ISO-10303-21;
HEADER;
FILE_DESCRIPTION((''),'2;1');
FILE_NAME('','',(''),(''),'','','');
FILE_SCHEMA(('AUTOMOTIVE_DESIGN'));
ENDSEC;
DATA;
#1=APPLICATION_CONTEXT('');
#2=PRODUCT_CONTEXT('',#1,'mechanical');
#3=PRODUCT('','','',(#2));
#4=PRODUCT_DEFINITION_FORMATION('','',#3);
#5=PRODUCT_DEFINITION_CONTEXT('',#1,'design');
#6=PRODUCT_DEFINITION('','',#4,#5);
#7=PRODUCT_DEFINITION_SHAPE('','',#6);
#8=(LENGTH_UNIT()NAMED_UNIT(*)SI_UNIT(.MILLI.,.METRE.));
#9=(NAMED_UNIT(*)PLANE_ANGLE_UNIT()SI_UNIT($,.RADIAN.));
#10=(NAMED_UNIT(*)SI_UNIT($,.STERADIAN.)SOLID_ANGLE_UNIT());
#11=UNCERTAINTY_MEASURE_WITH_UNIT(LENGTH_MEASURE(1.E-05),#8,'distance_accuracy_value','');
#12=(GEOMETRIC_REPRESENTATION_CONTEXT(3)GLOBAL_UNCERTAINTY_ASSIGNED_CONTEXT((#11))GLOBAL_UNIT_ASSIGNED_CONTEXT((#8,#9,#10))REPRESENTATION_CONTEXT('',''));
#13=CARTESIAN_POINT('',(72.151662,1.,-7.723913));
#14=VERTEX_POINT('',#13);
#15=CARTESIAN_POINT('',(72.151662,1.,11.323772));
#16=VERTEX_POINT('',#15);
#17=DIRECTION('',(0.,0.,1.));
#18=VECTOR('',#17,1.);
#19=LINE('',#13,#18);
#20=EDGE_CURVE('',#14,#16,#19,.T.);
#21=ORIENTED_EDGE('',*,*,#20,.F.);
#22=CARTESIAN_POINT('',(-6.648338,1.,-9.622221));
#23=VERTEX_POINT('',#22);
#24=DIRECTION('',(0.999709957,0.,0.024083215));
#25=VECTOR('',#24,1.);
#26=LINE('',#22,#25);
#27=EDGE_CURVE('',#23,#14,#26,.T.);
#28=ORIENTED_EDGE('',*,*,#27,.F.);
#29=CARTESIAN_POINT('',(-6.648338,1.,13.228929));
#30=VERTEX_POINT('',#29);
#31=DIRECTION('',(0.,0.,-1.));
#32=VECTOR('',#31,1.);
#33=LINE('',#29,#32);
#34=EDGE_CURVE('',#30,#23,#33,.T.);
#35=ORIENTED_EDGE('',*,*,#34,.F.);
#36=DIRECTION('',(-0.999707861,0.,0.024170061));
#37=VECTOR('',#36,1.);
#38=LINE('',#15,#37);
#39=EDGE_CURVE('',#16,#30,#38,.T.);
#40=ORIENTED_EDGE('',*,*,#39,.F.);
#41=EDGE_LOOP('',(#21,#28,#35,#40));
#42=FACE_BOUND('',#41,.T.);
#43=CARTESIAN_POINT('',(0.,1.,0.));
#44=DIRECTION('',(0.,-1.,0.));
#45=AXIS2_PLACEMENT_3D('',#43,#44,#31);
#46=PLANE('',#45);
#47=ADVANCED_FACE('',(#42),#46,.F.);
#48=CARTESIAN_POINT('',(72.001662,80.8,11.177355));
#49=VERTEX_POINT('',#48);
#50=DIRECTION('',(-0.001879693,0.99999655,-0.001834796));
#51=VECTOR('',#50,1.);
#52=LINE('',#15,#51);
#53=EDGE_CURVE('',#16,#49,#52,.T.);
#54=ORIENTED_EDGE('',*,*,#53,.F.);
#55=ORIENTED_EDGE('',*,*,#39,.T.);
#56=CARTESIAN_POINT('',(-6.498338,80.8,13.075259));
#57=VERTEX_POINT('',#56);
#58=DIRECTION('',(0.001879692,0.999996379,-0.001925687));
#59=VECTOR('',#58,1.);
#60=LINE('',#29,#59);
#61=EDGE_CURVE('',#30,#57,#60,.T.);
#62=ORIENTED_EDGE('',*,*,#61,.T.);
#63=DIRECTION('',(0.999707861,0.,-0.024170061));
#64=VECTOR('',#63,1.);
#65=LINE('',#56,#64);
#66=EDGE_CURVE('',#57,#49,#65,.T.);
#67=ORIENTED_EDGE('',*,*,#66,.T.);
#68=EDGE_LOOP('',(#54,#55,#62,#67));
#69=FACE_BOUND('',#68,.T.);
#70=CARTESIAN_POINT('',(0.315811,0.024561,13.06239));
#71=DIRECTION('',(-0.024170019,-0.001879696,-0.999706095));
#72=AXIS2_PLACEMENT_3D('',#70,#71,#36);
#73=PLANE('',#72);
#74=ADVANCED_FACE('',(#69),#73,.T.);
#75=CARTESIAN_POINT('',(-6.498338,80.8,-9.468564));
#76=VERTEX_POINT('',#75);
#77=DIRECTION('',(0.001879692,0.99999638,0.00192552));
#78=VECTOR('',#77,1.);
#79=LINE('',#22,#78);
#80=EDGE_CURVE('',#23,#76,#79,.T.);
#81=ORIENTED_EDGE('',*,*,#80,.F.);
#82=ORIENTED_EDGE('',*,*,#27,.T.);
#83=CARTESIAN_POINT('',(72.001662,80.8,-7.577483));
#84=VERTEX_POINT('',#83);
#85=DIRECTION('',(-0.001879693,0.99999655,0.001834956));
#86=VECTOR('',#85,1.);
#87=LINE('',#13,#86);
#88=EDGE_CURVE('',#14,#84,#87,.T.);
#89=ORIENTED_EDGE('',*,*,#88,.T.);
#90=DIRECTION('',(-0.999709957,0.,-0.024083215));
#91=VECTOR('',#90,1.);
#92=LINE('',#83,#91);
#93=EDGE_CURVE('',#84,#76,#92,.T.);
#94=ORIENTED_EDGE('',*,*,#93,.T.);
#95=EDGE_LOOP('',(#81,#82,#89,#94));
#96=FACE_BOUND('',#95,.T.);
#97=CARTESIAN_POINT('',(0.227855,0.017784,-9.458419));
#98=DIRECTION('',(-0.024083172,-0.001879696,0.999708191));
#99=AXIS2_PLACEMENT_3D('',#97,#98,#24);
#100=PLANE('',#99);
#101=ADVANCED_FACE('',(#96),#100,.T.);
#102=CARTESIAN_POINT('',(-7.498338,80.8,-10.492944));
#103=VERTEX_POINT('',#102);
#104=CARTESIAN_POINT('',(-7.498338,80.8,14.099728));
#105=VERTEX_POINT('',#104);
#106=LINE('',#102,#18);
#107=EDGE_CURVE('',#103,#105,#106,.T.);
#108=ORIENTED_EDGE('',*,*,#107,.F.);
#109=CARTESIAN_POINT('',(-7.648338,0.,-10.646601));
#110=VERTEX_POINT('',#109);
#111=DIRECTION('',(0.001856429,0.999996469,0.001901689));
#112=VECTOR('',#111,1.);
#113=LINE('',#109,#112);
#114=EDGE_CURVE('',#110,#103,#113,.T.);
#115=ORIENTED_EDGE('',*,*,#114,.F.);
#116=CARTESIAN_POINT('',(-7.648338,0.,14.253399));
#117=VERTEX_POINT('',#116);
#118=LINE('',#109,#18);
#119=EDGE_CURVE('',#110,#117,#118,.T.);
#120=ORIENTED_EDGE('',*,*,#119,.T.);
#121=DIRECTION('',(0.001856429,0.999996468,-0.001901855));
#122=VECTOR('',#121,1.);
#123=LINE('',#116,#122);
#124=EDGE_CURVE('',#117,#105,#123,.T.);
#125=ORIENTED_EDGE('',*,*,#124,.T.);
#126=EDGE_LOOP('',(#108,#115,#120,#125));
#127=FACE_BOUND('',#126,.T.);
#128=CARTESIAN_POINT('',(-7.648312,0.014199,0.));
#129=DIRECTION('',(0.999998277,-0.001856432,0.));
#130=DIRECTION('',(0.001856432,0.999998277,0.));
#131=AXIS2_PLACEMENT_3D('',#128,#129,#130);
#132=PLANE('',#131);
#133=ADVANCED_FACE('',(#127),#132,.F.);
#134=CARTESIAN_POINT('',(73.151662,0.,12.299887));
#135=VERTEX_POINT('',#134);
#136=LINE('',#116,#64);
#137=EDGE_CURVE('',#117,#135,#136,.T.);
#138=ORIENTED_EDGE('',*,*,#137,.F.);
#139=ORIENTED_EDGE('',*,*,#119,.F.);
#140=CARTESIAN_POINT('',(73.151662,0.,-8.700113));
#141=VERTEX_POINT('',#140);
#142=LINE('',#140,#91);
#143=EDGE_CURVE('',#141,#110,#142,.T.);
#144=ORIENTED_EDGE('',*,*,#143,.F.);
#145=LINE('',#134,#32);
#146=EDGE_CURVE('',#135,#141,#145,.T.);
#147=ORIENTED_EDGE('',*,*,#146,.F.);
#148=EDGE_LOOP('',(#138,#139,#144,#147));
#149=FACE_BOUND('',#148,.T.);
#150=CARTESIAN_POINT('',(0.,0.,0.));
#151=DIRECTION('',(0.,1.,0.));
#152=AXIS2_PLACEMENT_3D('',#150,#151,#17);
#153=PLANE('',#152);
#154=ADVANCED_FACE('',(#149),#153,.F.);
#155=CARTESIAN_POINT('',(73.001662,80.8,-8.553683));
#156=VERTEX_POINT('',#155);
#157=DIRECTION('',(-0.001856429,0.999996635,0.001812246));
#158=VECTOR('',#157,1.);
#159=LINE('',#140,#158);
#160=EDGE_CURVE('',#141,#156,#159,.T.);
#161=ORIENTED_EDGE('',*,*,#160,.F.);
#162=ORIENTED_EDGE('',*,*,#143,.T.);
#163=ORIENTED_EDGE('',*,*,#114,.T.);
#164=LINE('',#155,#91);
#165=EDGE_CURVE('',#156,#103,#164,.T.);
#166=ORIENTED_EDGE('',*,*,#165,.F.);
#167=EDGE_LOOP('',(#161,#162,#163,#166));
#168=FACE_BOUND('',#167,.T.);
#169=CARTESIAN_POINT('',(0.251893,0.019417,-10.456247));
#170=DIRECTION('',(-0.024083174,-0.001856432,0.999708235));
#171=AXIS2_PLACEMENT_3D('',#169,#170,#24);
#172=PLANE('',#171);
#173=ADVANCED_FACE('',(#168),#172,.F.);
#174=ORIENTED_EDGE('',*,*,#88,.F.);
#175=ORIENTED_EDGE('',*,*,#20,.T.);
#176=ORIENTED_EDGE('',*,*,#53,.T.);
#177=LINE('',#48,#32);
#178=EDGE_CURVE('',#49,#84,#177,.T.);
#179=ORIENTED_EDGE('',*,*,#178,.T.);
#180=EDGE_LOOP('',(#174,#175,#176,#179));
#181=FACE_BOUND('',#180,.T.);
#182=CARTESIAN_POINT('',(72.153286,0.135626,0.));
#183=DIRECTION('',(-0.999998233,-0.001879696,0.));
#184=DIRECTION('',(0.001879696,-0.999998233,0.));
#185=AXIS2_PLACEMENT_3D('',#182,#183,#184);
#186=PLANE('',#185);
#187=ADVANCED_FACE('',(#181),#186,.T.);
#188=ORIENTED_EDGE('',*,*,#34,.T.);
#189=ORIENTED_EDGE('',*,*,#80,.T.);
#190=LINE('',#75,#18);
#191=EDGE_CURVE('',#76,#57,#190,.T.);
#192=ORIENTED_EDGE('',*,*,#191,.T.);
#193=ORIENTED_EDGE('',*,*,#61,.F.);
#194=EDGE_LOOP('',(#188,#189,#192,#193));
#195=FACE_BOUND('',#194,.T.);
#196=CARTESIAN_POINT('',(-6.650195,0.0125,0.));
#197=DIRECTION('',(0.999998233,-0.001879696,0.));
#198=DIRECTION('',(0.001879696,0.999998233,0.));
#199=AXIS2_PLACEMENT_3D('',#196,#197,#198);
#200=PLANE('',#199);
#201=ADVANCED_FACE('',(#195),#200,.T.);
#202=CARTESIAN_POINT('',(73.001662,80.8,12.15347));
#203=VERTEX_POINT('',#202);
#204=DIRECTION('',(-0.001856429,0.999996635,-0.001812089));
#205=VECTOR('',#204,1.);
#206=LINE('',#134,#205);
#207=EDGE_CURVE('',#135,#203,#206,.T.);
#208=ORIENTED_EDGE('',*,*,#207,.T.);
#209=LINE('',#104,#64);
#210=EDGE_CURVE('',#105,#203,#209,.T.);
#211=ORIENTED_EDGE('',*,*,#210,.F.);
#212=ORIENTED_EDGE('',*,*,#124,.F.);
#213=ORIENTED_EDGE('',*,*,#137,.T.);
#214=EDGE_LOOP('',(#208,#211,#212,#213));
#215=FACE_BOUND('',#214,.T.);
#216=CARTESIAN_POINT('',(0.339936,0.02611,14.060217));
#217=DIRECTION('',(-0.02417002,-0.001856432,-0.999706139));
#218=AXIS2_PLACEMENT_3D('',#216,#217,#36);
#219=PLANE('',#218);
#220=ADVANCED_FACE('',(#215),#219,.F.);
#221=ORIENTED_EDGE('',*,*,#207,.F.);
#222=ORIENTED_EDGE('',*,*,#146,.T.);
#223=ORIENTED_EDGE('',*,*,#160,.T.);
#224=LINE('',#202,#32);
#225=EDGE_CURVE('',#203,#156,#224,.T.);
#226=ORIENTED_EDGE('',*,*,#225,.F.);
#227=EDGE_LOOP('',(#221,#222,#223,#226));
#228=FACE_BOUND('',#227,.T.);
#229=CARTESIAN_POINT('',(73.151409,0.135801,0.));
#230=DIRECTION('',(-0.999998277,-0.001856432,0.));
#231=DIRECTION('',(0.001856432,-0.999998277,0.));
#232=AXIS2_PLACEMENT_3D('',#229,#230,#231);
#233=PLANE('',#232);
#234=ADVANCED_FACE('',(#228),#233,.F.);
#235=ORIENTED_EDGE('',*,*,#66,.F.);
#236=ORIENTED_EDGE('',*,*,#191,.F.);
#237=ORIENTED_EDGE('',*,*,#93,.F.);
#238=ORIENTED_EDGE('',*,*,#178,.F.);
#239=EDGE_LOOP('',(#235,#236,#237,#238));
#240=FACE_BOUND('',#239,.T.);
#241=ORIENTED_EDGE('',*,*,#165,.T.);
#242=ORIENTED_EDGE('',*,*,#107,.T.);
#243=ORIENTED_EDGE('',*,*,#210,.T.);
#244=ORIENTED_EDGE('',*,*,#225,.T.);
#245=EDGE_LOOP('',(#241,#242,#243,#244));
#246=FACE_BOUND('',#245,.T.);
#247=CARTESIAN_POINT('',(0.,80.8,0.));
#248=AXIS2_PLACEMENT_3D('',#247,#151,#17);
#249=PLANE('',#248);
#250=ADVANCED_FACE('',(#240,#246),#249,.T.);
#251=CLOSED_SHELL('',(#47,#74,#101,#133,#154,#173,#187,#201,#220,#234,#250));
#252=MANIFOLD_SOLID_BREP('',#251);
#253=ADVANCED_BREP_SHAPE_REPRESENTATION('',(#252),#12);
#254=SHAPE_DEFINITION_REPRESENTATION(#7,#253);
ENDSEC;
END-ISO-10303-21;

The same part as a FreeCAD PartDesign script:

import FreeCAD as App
import Part
import Sketcher
Q = App.Units.Quantity

doc = App.newDocument("Part")
params = doc.addObject("Spreadsheet::Sheet", "Params")
for row, (alias, value) in enumerate([
    ("sketch1_height", "21 mm"),
    ("sketch1_height2", "24.9 mm"),
], start=1):
    params.set(f"A{row}", alias)
    params.set(f"B{row}", "=" + value)
    params.setAlias(f"B{row}", alias)

body = doc.addObject("PartDesign::Body", "Body")

# Sketch on XZ plane
sketch1 = doc.addObject("Sketcher::SketchObject", "Sketch")
body.addObject(sketch1)
sketch1.AttachmentSupport = (doc.XZ_Plane, [""])
sketch1.MapMode = "FlatFace"
sketch1.addGeometry([
    Part.LineSegment(App.Vector(-8, -11, 0), App.Vector(-8, 14, 0)),
    Part.LineSegment(App.Vector(-8, 14, 0), App.Vector(73, 12, 0)),
    Part.LineSegment(App.Vector(73, 12, 0), App.Vector(73, -9, 0)),
    Part.LineSegment(App.Vector(73, -9, 0), App.Vector(-8, -11, 0)),
], False)
sketch1.addConstraint([
    Sketcher.Constraint("Coincident", 0, 2, 1, 1),
    Sketcher.Constraint("Coincident", 1, 2, 2, 1),
    Sketcher.Constraint("Coincident", 2, 2, 3, 1),
    Sketcher.Constraint("Coincident", 3, 2, 0, 1),
    Sketcher.Constraint("Vertical", 0),
    Sketcher.Constraint("Vertical", 2),
    Sketcher.Constraint("DistanceY", 2, 2, 2, 1, 21.0),
    Sketcher.Constraint("DistanceY", 0, 1, 0, 2, 24.9),
    Sketcher.Constraint("Angle", 3, Q("-178.62 deg")),
    Sketcher.Constraint("DistanceX", 0, 2, 1, 2, 80.8),
    Sketcher.Constraint("DistanceY", -1, 1, 0, 2, 14.253399),
    Sketcher.Constraint("DistanceX", 0, 2, -1, 1, 7.648338),
])
sketch1.setExpression("Constraints[6]", "Params.sketch1_height")
sketch1.setExpression("Constraints[7]", "Params.sketch1_height2")

# Sketch on XZ plane
sketch2 = doc.addObject("Sketcher::SketchObject", "Sketch001")
body.addObject(sketch2)
sketch2.AttachmentSupport = (doc.XZ_Plane, [""])
sketch2.MapMode = "FlatFace"
sketch2.AttachmentOffset = App.Placement(App.Vector(0, 0, -80.8), App.Rotation())
sketch2.addGeometry([
    Part.LineSegment(App.Vector(73, 12, 0), App.Vector(73, -9, 0)),
    Part.LineSegment(App.Vector(73, -9, 0), App.Vector(-7, -10, 0)),
    Part.LineSegment(App.Vector(-7, -10, 0), App.Vector(-7, 14, 0)),
    Part.LineSegment(App.Vector(-7, 14, 0), App.Vector(73, 12, 0)),
], False)
sketch2.addConstraint([
    Sketcher.Constraint("Coincident", 0, 2, 1, 1),
    Sketcher.Constraint("Coincident", 1, 2, 2, 1),
    Sketcher.Constraint("Coincident", 2, 2, 3, 1),
    Sketcher.Constraint("Coincident", 3, 2, 0, 1),
    Sketcher.Constraint("Vertical", 0),
    Sketcher.Constraint("Vertical", 2),
    Sketcher.Constraint("Angle", 1, Q("-178.62 deg")),
    Sketcher.Constraint("DistanceX", 1, 2, 0, 2, 80.5),
    Sketcher.Constraint("DistanceY", 0, 2, 0, 1, 20.707153),
    Sketcher.Constraint("DistanceY", 2, 1, 2, 2, 24.592673),
    Sketcher.Constraint("DistanceX", -1, 1, 0, 2, 73.001662),
    Sketcher.Constraint("DistanceY", -1, 1, 2, 2, 14.099728),
])

additiveloft = doc.addObject("PartDesign::AdditiveLoft", "AdditiveLoft")
body.addObject(additiveloft)
additiveloft.Profile = sketch1
additiveloft.Sections = [sketch2]

# Sketch on XZ plane
sketch3 = doc.addObject("Sketcher::SketchObject", "Sketch002")
body.addObject(sketch3)
sketch3.AttachmentSupport = (doc.XZ_Plane, [""])
sketch3.MapMode = "FlatFace"
sketch3.AttachmentOffset = App.Placement(App.Vector(0, 0, -1), App.Rotation())
sketch3.addGeometry([
    Part.LineSegment(App.Vector(-7, 13, 0), App.Vector(-7, -10, 0)),
    Part.LineSegment(App.Vector(-7, -10, 0), App.Vector(72, -8, 0)),
    Part.LineSegment(App.Vector(72, -8, 0), App.Vector(72, 11, 0)),
    Part.LineSegment(App.Vector(72, 11, 0), App.Vector(-7, 13, 0)),
], False)
sketch3.addConstraint([
    Sketcher.Constraint("Coincident", 0, 2, 1, 1),
    Sketcher.Constraint("Coincident", 1, 2, 2, 1),
    Sketcher.Constraint("Coincident", 2, 2, 3, 1),
    Sketcher.Constraint("Coincident", 3, 2, 0, 1),
    Sketcher.Constraint("Vertical", 0),
    Sketcher.Constraint("Vertical", 2),
    Sketcher.Constraint("Angle", 1, Q("1.38 deg")),
    Sketcher.Constraint("DistanceX", 0, 2, 1, 2, 78.8),
    Sketcher.Constraint("DistanceY", 0, 2, 0, 1, 22.85115),
    Sketcher.Constraint("DistanceY", 2, 1, 2, 2, 19.047685),
    Sketcher.Constraint("DistanceX", 0, 2, -1, 1, 6.648338),
    Sketcher.Constraint("DistanceY", 0, 2, -1, 1, 9.622221),
])

# Sketch on XZ plane
sketch4 = doc.addObject("Sketcher::SketchObject", "Sketch003")
body.addObject(sketch4)
sketch4.AttachmentSupport = (doc.XZ_Plane, [""])
sketch4.MapMode = "FlatFace"
sketch4.AttachmentOffset = App.Placement(App.Vector(0, 0, -80.8), App.Rotation())
sketch4.addGeometry([
    Part.LineSegment(App.Vector(72, 11, 0), App.Vector(72, -8, 0)),
    Part.LineSegment(App.Vector(72, -8, 0), App.Vector(-6, -9, 0)),
    Part.LineSegment(App.Vector(-6, -9, 0), App.Vector(-6, 13, 0)),
    Part.LineSegment(App.Vector(-6, 13, 0), App.Vector(72, 11, 0)),
], False)
sketch4.addConstraint([
    Sketcher.Constraint("Coincident", 0, 2, 1, 1),
    Sketcher.Constraint("Coincident", 1, 2, 2, 1),
    Sketcher.Constraint("Coincident", 2, 2, 3, 1),
    Sketcher.Constraint("Coincident", 3, 2, 0, 1),
    Sketcher.Constraint("Vertical", 0),
    Sketcher.Constraint("Vertical", 2),
    Sketcher.Constraint("Angle", 1, Q("-178.62 deg")),
    Sketcher.Constraint("DistanceX", 1, 2, 0, 2, 78.5),
    Sketcher.Constraint("Distance", 3, 78.52294),
    Sketcher.Constraint("DistanceY", 0, 2, 0, 1, 18.754838),
    Sketcher.Constraint("DistanceX", -1, 1, 0, 2, 72.001662),
    Sketcher.Constraint("DistanceY", -1, 1, 2, 2, 13.075259),
])

subtractiveloft = doc.addObject("PartDesign::SubtractiveLoft", "SubtractiveLoft")
body.addObject(subtractiveloft)
subtractiveloft.Profile = sketch3
subtractiveloft.Sections = [sketch4]

doc.recompute()
